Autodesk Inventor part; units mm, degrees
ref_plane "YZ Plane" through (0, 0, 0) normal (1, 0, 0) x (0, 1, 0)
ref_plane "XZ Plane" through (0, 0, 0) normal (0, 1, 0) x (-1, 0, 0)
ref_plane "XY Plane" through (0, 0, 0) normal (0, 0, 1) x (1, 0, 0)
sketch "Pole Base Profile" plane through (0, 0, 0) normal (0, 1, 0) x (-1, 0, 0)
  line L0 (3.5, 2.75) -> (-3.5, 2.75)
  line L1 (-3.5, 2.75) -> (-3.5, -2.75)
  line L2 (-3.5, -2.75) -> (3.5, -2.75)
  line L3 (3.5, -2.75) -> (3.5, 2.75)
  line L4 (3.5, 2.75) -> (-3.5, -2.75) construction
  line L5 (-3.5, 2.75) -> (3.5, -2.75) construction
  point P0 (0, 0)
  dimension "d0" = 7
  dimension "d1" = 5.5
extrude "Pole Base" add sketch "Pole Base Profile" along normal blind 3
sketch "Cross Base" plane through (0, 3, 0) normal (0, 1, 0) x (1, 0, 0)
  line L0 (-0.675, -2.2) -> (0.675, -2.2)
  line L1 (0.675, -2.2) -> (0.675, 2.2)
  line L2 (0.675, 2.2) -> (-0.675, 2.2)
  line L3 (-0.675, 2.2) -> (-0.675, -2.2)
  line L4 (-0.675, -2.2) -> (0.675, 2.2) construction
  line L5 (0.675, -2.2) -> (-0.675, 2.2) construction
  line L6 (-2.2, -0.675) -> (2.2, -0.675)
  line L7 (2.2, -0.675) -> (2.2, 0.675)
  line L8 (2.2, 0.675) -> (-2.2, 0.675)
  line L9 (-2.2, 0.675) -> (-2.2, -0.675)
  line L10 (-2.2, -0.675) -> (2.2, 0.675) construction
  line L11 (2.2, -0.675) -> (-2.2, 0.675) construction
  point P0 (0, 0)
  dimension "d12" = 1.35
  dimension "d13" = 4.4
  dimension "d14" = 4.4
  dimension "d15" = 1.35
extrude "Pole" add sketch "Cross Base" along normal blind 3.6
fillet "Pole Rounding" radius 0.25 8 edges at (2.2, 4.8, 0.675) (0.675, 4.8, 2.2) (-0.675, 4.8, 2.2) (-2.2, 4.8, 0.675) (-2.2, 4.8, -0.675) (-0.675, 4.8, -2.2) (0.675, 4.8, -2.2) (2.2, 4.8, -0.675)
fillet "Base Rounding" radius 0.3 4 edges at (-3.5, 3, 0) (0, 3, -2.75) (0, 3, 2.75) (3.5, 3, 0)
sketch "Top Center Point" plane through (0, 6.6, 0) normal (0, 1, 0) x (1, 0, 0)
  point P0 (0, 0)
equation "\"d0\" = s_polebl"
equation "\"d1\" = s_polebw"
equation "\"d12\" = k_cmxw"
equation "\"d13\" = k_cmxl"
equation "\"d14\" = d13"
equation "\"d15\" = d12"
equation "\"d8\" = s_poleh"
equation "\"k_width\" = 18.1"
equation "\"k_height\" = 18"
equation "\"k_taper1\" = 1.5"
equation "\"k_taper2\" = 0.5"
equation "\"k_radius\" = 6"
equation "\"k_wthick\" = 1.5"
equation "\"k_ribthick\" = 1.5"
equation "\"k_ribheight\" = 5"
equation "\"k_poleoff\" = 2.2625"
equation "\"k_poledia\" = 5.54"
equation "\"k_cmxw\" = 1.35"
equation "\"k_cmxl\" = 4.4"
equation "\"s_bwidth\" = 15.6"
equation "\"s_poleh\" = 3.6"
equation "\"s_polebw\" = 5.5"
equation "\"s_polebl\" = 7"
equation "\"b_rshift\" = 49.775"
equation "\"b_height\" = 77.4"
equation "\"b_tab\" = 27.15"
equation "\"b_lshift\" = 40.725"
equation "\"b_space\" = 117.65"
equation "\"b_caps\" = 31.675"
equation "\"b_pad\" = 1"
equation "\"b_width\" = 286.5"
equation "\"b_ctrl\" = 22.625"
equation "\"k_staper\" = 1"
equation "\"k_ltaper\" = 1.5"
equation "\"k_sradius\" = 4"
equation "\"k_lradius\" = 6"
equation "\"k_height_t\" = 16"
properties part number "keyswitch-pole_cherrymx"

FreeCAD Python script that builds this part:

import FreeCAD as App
import Part
import Sketcher
Q = App.Units.Quantity


def edges_at(feature, points):
    """Names of the edges that pass closest to the given points."""
    edges = feature.Shape.Edges
    near = lambda p: min(range(len(edges)), key=lambda i: edges[i].distToShape(Part.Vertex(*p))[0])
    return sorted({f"Edge{near(p) + 1}" for p in points})


def add_polygon(sketch, points):
    """Adds a closed chain of lines whose ends are joined by coincident constraints."""
    first, n = sketch.GeometryCount, len(points)
    for a, b in zip(points, points[1:] + points[:1]):
        sketch.addGeometry(Part.LineSegment(App.Vector(*a, 0), App.Vector(*b, 0)), False)
    for i in range(n):
        sketch.addConstraint(Sketcher.Constraint("Coincident", first + i, 2, first + (i + 1) % n, 1))

doc = App.newDocument("Part")
params = doc.addObject("Spreadsheet::Sheet", "Params")
for row, (alias, value) in enumerate([
    ("sketch1_width", "7 mm"),
    ("sketch1_height", "5.5 mm"),
    ("pad1_length", "3 mm"),
    ("sketch2_width", "1.35 mm"),
    ("pad2_length", "3.6 mm"),
    ("fillet_radius", "0.25 mm"),
    ("fillet2_radius", "0.3 mm"),
], start=1):
    params.set(f"A{row}", alias)
    params.set(f"B{row}", "=" + value)
    params.setAlias(f"B{row}", alias)

body = doc.addObject("PartDesign::Body", "Body")

sketch1 = body.newObject("Sketcher::SketchObject", "Sketch")
sketch1.AttachmentSupport = (doc.getObject("XZ_Plane"), [""])
sketch1.MapMode = "FlatFace"
add_polygon(sketch1, [(-4, -3), (-4, 3), (4, 3), (4, -3)])
sketch1.addConstraint([
    Sketcher.Constraint("Vertical", 0),
    Sketcher.Constraint("Horizontal", 1),
    Sketcher.Constraint("Vertical", 2),
    Sketcher.Constraint("Horizontal", 3),
    Sketcher.Constraint("Symmetric", 0, 2, 2, 2, -1, 1),
    Sketcher.Constraint("DistanceX", 1, 1, 1, 2, Q("7 mm")),
    Sketcher.Constraint("DistanceY", 0, 1, 0, 2, Q("5.5 mm")),
])
sketch1.setExpression("Constraints[9]", "Params.sketch1_width")
sketch1.setExpression("Constraints[10]", "Params.sketch1_height")
pad1 = body.newObject("PartDesign::Pad", "Pad")
pad1.Profile = sketch1
pad1.setExpression("Length", "Params.pad1_length")
pad1.Reversed = True

sketch2 = body.newObject("Sketcher::SketchObject", "Sketch001")
sketch2.AttachmentSupport = (doc.getObject("XZ_Plane"), [""])
sketch2.MapMode = "FlatFace"
sketch2.AttachmentOffset = App.Placement(App.Vector(0, 0, -3), App.Rotation())
add_polygon(sketch2, [(-0.7, 0.7), (-0.7, 2.2), (0.7, 2.2), (0.7, 0.7), (2.2, 0.7), (2.2, -0.7), (0.7, -0.7), (0.7, -2.2), (-0.7, -2.2), (-0.7, -0.7), (-2.2, -0.7), (-2.2, 0.7)])
sketch2.addConstraint([
    Sketcher.Constraint("Vertical", 0),
    Sketcher.Constraint("Horizontal", 1),
    Sketcher.Constraint("Vertical", 2),
    Sketcher.Constraint("Horizontal", 3),
    Sketcher.Constraint("Vertical", 4),
    Sketcher.Constraint("Horizontal", 5),
    Sketcher.Constraint("Vertical", 6),
    Sketcher.Constraint("Horizontal", 7),
    Sketcher.Constraint("Vertical", 8),
    Sketcher.Constraint("Horizontal", 9),
    Sketcher.Constraint("Vertical", 10),
    Sketcher.Constraint("Horizontal", 11),
    Sketcher.Constraint("Symmetric", 0, 2, 6, 2, -1, 1),
    Sketcher.Constraint("Symmetric", 2, 2, 8, 2, -1, 1),
    Sketcher.Constraint("Symmetric", 4, 2, 10, 2, -1, 1),
    Sketcher.Constraint("Symmetric", 5, 2, 8, 2, -2),
    Sketcher.Constraint("Equal", 11, 0),
    Sketcher.Constraint("Equal", 7, 4),
    Sketcher.Constraint("DistanceX", 1, 1, 1, 2, Q("1.35 mm")),
    Sketcher.Constraint("DistanceY", 6, 2, 1, 2, Q("4.4 mm")),
])
sketch2.setExpression("Constraints[30]", "Params.sketch2_width")
pad2 = body.newObject("PartDesign::Pad", "Pad001")
pad2.Profile = sketch2
pad2.setExpression("Length", "Params.pad2_length")
pad2.Reversed = True
doc.recompute()

fillet = body.newObject("PartDesign::Fillet", "Fillet")
fillet.Base = (pad2, edges_at(pad2, [
    (2.2, 4.8, 0.675),
    (0.675, 4.8, 2.2),
    (-0.675, 4.8, 2.2),
    (-2.2, 4.8, 0.675),
    (-2.2, 4.8, -0.675),
    (-0.675, 4.8, -2.2),
    (0.675, 4.8, -2.2),
    (2.2, 4.8, -0.675),
]))
fillet.setExpression("Radius", "Params.fillet_radius")
doc.recompute()

fillet2 = body.newObject("PartDesign::Fillet", "Fillet001")
fillet2.Base = (fillet, edges_at(fillet, [
    (-3.5, 3, 0),
    (0, 3, -2.75),
    (0, 3, 2.75),
    (3.5, 3, 0),
]))
fillet2.setExpression("Radius", "Params.fillet2_radius")

doc.recompute()
